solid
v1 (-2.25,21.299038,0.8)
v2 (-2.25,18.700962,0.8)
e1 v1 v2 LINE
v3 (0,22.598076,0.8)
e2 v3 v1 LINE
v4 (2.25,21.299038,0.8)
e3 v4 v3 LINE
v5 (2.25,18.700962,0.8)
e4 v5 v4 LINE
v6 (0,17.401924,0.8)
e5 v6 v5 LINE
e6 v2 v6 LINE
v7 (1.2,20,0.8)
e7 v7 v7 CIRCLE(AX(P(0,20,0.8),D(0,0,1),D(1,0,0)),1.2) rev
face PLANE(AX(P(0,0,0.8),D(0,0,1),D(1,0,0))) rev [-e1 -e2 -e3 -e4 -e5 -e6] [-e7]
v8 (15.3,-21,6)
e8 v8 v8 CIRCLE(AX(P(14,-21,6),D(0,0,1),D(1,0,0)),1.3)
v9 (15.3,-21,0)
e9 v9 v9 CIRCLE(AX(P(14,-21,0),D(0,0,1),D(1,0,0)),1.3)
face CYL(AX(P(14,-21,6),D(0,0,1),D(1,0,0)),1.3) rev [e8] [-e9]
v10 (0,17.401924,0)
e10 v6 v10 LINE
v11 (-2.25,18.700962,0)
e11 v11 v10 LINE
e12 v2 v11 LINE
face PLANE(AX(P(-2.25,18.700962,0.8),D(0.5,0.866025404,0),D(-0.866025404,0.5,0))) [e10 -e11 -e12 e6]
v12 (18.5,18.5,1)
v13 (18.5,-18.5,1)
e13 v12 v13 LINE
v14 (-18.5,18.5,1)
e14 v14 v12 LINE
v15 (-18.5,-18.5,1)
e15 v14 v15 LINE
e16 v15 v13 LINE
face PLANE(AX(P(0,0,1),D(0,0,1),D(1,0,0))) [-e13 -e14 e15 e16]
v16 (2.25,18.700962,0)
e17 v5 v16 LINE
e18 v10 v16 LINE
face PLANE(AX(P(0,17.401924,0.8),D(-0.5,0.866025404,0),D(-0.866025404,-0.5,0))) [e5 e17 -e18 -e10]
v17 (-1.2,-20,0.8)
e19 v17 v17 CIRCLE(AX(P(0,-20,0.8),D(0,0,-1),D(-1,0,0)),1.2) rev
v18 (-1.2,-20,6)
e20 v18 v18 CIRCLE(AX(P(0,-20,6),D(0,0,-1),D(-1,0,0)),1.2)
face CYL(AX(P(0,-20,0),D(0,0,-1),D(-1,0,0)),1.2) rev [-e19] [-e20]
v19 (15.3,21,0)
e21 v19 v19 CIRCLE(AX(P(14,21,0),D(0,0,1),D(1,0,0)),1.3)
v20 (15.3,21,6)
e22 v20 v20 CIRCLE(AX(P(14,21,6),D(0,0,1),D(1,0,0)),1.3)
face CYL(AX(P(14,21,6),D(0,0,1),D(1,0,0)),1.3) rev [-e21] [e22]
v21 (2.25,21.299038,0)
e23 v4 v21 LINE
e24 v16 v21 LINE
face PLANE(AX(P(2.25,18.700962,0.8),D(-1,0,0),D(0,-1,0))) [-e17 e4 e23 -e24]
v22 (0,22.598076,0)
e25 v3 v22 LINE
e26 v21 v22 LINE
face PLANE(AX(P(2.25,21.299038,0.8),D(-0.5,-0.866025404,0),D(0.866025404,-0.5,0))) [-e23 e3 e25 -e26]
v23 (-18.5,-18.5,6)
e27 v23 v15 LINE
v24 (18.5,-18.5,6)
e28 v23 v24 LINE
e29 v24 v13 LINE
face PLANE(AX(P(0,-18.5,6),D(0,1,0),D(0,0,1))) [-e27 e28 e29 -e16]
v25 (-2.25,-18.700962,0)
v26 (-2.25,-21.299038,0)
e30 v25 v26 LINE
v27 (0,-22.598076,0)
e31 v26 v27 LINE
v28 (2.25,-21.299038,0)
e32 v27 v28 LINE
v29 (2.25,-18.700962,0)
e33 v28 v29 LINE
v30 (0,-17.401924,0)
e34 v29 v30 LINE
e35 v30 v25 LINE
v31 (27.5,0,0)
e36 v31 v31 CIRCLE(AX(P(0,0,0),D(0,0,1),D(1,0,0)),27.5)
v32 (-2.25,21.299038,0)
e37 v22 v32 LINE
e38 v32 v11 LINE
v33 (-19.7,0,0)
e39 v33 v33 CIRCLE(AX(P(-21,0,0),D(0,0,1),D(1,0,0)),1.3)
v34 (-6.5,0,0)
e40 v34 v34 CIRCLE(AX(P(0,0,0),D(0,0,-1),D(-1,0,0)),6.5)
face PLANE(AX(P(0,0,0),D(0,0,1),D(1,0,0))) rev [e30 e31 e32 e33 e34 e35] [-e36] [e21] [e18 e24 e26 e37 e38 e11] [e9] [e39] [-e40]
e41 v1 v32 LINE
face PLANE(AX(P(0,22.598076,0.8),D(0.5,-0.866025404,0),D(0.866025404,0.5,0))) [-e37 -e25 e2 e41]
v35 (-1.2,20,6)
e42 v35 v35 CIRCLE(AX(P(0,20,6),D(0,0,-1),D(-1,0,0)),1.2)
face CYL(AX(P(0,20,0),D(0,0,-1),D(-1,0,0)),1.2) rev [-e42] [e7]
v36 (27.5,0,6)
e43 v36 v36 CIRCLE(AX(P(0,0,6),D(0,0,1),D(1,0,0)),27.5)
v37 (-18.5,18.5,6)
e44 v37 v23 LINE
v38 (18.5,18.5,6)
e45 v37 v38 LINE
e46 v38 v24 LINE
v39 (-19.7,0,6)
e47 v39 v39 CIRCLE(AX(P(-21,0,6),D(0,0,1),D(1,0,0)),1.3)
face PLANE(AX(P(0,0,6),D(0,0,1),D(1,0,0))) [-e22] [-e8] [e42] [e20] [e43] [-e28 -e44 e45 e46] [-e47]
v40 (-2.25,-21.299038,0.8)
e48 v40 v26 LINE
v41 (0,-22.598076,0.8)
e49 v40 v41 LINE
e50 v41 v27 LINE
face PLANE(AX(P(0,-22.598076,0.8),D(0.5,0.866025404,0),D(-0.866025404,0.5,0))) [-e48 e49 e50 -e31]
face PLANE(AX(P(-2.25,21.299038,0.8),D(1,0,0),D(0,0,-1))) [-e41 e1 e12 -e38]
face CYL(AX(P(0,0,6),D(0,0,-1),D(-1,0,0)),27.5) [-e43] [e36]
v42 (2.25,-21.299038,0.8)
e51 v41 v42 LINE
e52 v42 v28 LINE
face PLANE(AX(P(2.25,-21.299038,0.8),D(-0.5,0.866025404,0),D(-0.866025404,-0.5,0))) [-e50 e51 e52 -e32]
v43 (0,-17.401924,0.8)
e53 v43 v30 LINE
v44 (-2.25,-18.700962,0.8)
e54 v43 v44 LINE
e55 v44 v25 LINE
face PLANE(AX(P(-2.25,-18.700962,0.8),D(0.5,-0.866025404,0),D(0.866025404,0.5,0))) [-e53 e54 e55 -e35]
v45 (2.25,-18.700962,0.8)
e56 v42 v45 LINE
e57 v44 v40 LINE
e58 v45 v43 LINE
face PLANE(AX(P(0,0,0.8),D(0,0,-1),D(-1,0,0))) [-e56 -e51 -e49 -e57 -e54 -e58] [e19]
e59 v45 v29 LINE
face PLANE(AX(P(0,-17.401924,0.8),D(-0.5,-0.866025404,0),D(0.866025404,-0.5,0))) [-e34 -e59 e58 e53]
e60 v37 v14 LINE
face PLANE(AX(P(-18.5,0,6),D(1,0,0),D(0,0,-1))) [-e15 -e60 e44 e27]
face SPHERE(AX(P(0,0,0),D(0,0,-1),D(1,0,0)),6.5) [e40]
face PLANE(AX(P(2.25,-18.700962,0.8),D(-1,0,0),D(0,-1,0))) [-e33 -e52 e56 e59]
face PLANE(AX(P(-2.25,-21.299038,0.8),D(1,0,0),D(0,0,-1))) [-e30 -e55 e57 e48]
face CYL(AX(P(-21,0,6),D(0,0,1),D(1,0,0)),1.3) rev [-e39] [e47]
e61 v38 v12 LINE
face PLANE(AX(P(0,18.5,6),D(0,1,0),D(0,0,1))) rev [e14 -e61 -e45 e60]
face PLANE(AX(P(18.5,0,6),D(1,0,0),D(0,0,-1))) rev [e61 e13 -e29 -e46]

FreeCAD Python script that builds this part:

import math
import FreeCAD as App
import Part
import Sketcher
Q = App.Units.Quantity


def add_polygon(sketch, points):
    """Adds a closed chain of lines whose ends are joined by coincident constraints."""
    first, n = sketch.GeometryCount, len(points)
    for a, b in zip(points, points[1:] + points[:1]):
        sketch.addGeometry(Part.LineSegment(App.Vector(*a, 0), App.Vector(*b, 0)), False)
    for i in range(n):
        sketch.addConstraint(Sketcher.Constraint("Coincident", first + i, 2, first + (i + 1) % n, 1))

doc = App.newDocument("Part")
body = doc.addObject("PartDesign::Body", "Body")

# Sketch on XY plane
sketch1 = body.newObject("Sketcher::SketchObject", "Sketch")
sketch1.AttachmentSupport = (doc.getObject("XY_Plane"), [""])
sketch1.MapMode = "FlatFace"
sketch1.addGeometry(Part.Circle(App.Vector(0, 0, 0), App.Vector(0, 0, 1), 28), False)  # 0
add_polygon(sketch1, [(18, -18), (-18, -18), (-18, 18), (18, 18)])  # lines 1-4
sketch1.addConstraint(Sketcher.Constraint("Horizontal", 1))
sketch1.addConstraint(Sketcher.Constraint("Vertical", 2))
sketch1.addConstraint(Sketcher.Constraint("Horizontal", 3))
sketch1.addConstraint(Sketcher.Constraint("Vertical", 4))
sketch1.addConstraint(Sketcher.Constraint("Coincident", 0, 3, -1, 1))
sketch1.addConstraint(Sketcher.Constraint("Symmetric", 1, 2, 3, 2, -1, 1))
sketch1.addConstraint(Sketcher.Constraint("Equal", 3, 2))
sketch1.addConstraint(Sketcher.Constraint("Diameter", 0, 55.0))
sketch1.addConstraint(Sketcher.Constraint("DistanceX", 1, 2, 1, 1, 37.0))
pad1 = body.newObject("PartDesign::Pad", "Pad")
pad1.Profile = sketch1
pad1.Length = 6

# Sketch on XY plane
sketch2 = body.newObject("Sketcher::SketchObject", "Sketch001")
sketch2.AttachmentSupport = (doc.getObject("XY_Plane"), [""])
sketch2.MapMode = "FlatFace"
add_polygon(sketch2, [(-18, 18), (-18, -18), (18, -18), (18, 18)])  # lines 0-3
sketch2.addConstraint(Sketcher.Constraint("Vertical", 0))
sketch2.addConstraint(Sketcher.Constraint("Horizontal", 1))
sketch2.addConstraint(Sketcher.Constraint("Vertical", 2))
sketch2.addConstraint(Sketcher.Constraint("Horizontal", 3))
sketch2.addConstraint(Sketcher.Constraint("Symmetric", 0, 2, 2, 2, -1, 1))
sketch2.addConstraint(Sketcher.Constraint("Equal", 3, 0))
sketch2.addConstraint(Sketcher.Constraint("DistanceX", 1, 1, 1, 2, 37.0))
pad2 = body.newObject("PartDesign::Pad", "Pad001")
pad2.Profile = sketch2
pad2.Length = 1

# Sketch on XZ plane
sketch3 = body.newObject("Sketcher::SketchObject", "Sketch002")
sketch3.AttachmentSupport = (doc.getObject("XZ_Plane"), [""])
sketch3.MapMode = "FlatFace"
sketch3.addGeometry(Part.LineSegment(App.Vector(0, 0, 0), App.Vector(0, -6, 0)), False)
sketch3.addGeometry(Part.ArcOfCircle(Part.Circle(App.Vector(0, 0, 0), App.Vector(0, 0, 1), 6), math.radians(180), math.radians(270)), False)
sketch3.addGeometry(Part.LineSegment(App.Vector(-6, 0, 0), App.Vector(0, 0, 0)), False)
sketch3.addConstraint(Sketcher.Constraint("Coincident", 0, 2, 1, 2))
sketch3.addConstraint(Sketcher.Constraint("Coincident", 1, 1, 2, 1))
sketch3.addConstraint(Sketcher.Constraint("Coincident", 2, 2, 0, 1))
sketch3.addConstraint(Sketcher.Constraint("Vertical", 0))
sketch3.addConstraint(Sketcher.Constraint("Horizontal", 2))
sketch3.addConstraint(Sketcher.Constraint("Coincident", 1, 3, -1, 1))
sketch3.addConstraint(Sketcher.Constraint("Coincident", 2, 2, -1, 1))
sketch3.addConstraint(Sketcher.Constraint("Radius", 1, 6.5))
revolution = body.newObject("PartDesign::Revolution", "Revolution")
revolution.Profile = sketch3
revolution.ReferenceAxis = (sketch3, ["V_Axis"])
revolution.Angle = 360

# Sketch on XY plane
sketch4 = body.newObject("Sketcher::SketchObject", "Sketch003")
sketch4.AttachmentSupport = (doc.getObject("XY_Plane"), [""])
sketch4.MapMode = "FlatFace"
sketch4.AttachmentOffset = App.Placement(App.Vector(0, 0, 6), App.Rotation())
sketch4.addGeometry(Part.Circle(App.Vector(-21, 0, 0), App.Vector(0, 0, 1), 1.3), False)
sketch4.addGeometry(Part.Circle(App.Vector(14, -21, 0), App.Vector(0, 0, 1), 1.3), False)
sketch4.addGeometry(Part.Circle(App.Vector(14, 21, 0), App.Vector(0, 0, 1), 1.3), False)
sketch4.addConstraint(Sketcher.Constraint("Equal", 0, 1))
sketch4.addConstraint(Sketcher.Constraint("Equal", 1, 2))
sketch4.addConstraint(Sketcher.Constraint("Symmetric", 1, 3, 2, 3, -1))
sketch4.addConstraint(Sketcher.Constraint("PointOnObject", 0, 3, -1))
sketch4.addConstraint(Sketcher.Constraint("Diameter", 0, 2.6))
sketch4.addConstraint(Sketcher.Constraint("DistanceX", 0, 3, -1, 1, 21.0))
sketch4.addConstraint(Sketcher.Constraint("DistanceX", -1, 1, 1, 3, 14.0))
sketch4.addConstraint(Sketcher.Constraint("DistanceY", 1, 3, -1, 1, 21.0))
doc.recompute()
hole = body.newObject("PartDesign::Hole", "Hole")
hole.Profile = sketch4
hole.ThreadType = "None"
hole.Diameter = 2.6
hole.DepthType = "ThroughAll"

# Sketch on XY plane
sketch5 = body.newObject("Sketcher::SketchObject", "Sketch004")
sketch5.AttachmentSupport = (doc.getObject("XY_Plane"), [""])
sketch5.MapMode = "FlatFace"
sketch5.addGeometry(Part.Circle(App.Vector(0, 20, 0), App.Vector(0, 0, 1), 1.2), False)
sketch5.addGeometry(Part.Circle(App.Vector(0, -20, 0), App.Vector(0, 0, 1), 1.2), False)
sketch5.addConstraint(Sketcher.Constraint("Equal", 0, 1))
sketch5.addConstraint(Sketcher.Constraint("Symmetric", 0, 3, 1, 3, -1, 1))
sketch5.addConstraint(Sketcher.Constraint("PointOnObject", 0, 3, -2))
sketch5.addConstraint(Sketcher.Constraint("Diameter", 0, 2.4))
sketch5.addConstraint(Sketcher.Constraint("DistanceY", -1, 1, 0, 3, 20.0))
doc.recompute()
hole2 = body.newObject("PartDesign::Hole", "Hole001")
hole2.Profile = sketch5
hole2.ThreadType = "None"
hole2.Diameter = 2.4
hole2.DepthType = "ThroughAll"
hole2.Reversed = True

# Sketch on XY plane
sketch6 = body.newObject("Sketcher::SketchObject", "Sketch005")
sketch6.AttachmentSupport = (doc.getObject("XY_Plane"), [""])
sketch6.MapMode = "FlatFace"
add_polygon(sketch6, [(0, 17.4), (2.2, 18.7), (2.2, 21.3), (0, 22.6), (-2.2, 21.3), (-2.2, 18.7)])  # lines 0-5
add_polygon(sketch6, [(0, -17.4), (-2.2, -18.7), (-2.2, -21.3), (0, -22.6), (2.2, -21.3), (2.2, -18.7)])  # lines 6-11
sketch6.addConstraint(Sketcher.Constraint("Vertical", 1))
sketch6.addConstraint(Sketcher.Constraint("Vertical", 4))
sketch6.addConstraint(Sketcher.Constraint("Vertical", 7))
sketch6.addConstraint(Sketcher.Constraint("Vertical", 10))
sketch6.addConstraint(Sketcher.Constraint("Symmetric", 0, 2, 6, 2, -1, 1))
sketch6.addConstraint(Sketcher.Constraint("Symmetric", 2, 2, 8, 2, -1, 1))
sketch6.addConstraint(Sketcher.Constraint("Symmetric", 3, 2, 9, 2, -1, 1))
sketch6.addConstraint(Sketcher.Constraint("Symmetric", 5, 2, 11, 2, -1, 1))
sketch6.addConstraint(Sketcher.Constraint("Symmetric", 1, 2, 3, 2, -2))
sketch6.addConstraint(Sketcher.Constraint("PointOnObject", 2, 2, -2))
sketch6.addConstraint(Sketcher.Constraint("PointOnObject", 5, 2, -2))
sketch6.addConstraint(Sketcher.Constraint("Parallel", 0, 3))
sketch6.addConstraint(Sketcher.Constraint("Parallel", 2, 5))
sketch6.addConstraint(Sketcher.Constraint("Parallel", 5, 8))
sketch6.addConstraint(Sketcher.Constraint("Parallel", 8, 11))
sketch6.addConstraint(Sketcher.Constraint("Angle", 0, Q("30 deg")))
sketch6.addConstraint(Sketcher.Constraint("DistanceY", 6, 2, 3, 2, 40.0))
sketch6.addConstraint(Sketcher.Constraint("DistanceX", 3, 2, 1, 2, 4.5))
sketch6.addConstraint(Sketcher.Constraint("DistanceY", 1, 1, 1, 2, 2.598076))
pocket1 = body.newObject("PartDesign::Pocket", "Pocket")
pocket1.Profile = sketch6
pocket1.Length = 0.8
pocket1.Reversed = True

doc.recompute()
